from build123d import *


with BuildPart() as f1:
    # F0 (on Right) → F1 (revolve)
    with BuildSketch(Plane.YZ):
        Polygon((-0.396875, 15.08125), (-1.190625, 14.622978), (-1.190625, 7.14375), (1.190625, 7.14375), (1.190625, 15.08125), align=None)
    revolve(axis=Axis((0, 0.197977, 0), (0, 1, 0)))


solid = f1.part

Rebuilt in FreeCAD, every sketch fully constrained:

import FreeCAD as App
import Part
import Sketcher

V = App.Vector
Q = App.Units.Quantity


def add_polygon(sketch, points):
    """Adds a closed chain of lines whose ends are joined by coincident constraints."""
    first, n = sketch.GeometryCount, len(points)
    for a, b in zip(points, points[1:] + points[:1]):
        sketch.addGeometry(Part.LineSegment(App.Vector(*a, 0), App.Vector(*b, 0)), False)
    for i in range(n):
        sketch.addConstraint(Sketcher.Constraint("Coincident", first + i, 2, first + (i + 1) % n, 1))

doc = App.newDocument("Part")
params = doc.addObject("Spreadsheet::Sheet", "Params")
for row, (alias, value) in enumerate([
    ("sketch1_width", "0.09375 in"),
    ("sketch1_width2", "0.0625 in"),
    ("sketch1_height", "0.3125 in"),
    ("revolution_angle", "360 deg"),
], start=1):
    params.set(f"A{row}", alias)
    params.set(f"B{row}", "=" + value)
    params.setAlias(f"B{row}", alias)

body = doc.addObject("PartDesign::Body", "Body")

sketch1 = body.newObject("Sketcher::SketchObject", "Sketch")
sketch1.AttachmentSupport = (doc.getObject("YZ_Plane"), [""])
sketch1.MapMode = "FlatFace"
add_polygon(sketch1, [(-0.396875, 15.08125), (-1.190625, 14.622978), (-1.190625, 7.14375), (1.190625, 7.14375), (1.190625, 15.08125)])
sketch1.addConstraint(Sketcher.Constraint("Vertical", 1))
sketch1.addConstraint(Sketcher.Constraint("Horizontal", 2))
sketch1.addConstraint(Sketcher.Constraint("Vertical", 3))
sketch1.addConstraint(Sketcher.Constraint("Horizontal", 4))
sketch1.addConstraint(Sketcher.Constraint("Angle", 0, Q("-149.999988 deg")))
sketch1.addConstraint(Sketcher.Constraint("DistanceX", 2, 1, 2, 2, Q("0.09375 in")))
sketch1.addConstraint(Sketcher.Constraint("DistanceX", 4, 2, 4, 1, Q("0.0625 in")))
sketch1.addConstraint(Sketcher.Constraint("DistanceY", 3, 1, 3, 2, Q("0.3125 in")))
sketch1.addConstraint(Sketcher.Constraint("DistanceX", 0, 2, -1, 1, Q("0.046875 in")))
sketch1.addConstraint(Sketcher.Constraint("DistanceY", -1, 1, 1, 2, Q("0.28125 in")))
sketch1.setExpression("Constraints[10]", "Params.sketch1_width")
sketch1.setExpression("Constraints[11]", "Params.sketch1_width2")
sketch1.setExpression("Constraints[12]", "Params.sketch1_height")
revolution = body.newObject("PartDesign::Revolution", "Revolution")
revolution.Profile = sketch1
revolution.ReferenceAxis = (sketch1, ["H_Axis"])
revolution.setExpression("Angle", "Params.revolution_angle")

doc.recompute()
